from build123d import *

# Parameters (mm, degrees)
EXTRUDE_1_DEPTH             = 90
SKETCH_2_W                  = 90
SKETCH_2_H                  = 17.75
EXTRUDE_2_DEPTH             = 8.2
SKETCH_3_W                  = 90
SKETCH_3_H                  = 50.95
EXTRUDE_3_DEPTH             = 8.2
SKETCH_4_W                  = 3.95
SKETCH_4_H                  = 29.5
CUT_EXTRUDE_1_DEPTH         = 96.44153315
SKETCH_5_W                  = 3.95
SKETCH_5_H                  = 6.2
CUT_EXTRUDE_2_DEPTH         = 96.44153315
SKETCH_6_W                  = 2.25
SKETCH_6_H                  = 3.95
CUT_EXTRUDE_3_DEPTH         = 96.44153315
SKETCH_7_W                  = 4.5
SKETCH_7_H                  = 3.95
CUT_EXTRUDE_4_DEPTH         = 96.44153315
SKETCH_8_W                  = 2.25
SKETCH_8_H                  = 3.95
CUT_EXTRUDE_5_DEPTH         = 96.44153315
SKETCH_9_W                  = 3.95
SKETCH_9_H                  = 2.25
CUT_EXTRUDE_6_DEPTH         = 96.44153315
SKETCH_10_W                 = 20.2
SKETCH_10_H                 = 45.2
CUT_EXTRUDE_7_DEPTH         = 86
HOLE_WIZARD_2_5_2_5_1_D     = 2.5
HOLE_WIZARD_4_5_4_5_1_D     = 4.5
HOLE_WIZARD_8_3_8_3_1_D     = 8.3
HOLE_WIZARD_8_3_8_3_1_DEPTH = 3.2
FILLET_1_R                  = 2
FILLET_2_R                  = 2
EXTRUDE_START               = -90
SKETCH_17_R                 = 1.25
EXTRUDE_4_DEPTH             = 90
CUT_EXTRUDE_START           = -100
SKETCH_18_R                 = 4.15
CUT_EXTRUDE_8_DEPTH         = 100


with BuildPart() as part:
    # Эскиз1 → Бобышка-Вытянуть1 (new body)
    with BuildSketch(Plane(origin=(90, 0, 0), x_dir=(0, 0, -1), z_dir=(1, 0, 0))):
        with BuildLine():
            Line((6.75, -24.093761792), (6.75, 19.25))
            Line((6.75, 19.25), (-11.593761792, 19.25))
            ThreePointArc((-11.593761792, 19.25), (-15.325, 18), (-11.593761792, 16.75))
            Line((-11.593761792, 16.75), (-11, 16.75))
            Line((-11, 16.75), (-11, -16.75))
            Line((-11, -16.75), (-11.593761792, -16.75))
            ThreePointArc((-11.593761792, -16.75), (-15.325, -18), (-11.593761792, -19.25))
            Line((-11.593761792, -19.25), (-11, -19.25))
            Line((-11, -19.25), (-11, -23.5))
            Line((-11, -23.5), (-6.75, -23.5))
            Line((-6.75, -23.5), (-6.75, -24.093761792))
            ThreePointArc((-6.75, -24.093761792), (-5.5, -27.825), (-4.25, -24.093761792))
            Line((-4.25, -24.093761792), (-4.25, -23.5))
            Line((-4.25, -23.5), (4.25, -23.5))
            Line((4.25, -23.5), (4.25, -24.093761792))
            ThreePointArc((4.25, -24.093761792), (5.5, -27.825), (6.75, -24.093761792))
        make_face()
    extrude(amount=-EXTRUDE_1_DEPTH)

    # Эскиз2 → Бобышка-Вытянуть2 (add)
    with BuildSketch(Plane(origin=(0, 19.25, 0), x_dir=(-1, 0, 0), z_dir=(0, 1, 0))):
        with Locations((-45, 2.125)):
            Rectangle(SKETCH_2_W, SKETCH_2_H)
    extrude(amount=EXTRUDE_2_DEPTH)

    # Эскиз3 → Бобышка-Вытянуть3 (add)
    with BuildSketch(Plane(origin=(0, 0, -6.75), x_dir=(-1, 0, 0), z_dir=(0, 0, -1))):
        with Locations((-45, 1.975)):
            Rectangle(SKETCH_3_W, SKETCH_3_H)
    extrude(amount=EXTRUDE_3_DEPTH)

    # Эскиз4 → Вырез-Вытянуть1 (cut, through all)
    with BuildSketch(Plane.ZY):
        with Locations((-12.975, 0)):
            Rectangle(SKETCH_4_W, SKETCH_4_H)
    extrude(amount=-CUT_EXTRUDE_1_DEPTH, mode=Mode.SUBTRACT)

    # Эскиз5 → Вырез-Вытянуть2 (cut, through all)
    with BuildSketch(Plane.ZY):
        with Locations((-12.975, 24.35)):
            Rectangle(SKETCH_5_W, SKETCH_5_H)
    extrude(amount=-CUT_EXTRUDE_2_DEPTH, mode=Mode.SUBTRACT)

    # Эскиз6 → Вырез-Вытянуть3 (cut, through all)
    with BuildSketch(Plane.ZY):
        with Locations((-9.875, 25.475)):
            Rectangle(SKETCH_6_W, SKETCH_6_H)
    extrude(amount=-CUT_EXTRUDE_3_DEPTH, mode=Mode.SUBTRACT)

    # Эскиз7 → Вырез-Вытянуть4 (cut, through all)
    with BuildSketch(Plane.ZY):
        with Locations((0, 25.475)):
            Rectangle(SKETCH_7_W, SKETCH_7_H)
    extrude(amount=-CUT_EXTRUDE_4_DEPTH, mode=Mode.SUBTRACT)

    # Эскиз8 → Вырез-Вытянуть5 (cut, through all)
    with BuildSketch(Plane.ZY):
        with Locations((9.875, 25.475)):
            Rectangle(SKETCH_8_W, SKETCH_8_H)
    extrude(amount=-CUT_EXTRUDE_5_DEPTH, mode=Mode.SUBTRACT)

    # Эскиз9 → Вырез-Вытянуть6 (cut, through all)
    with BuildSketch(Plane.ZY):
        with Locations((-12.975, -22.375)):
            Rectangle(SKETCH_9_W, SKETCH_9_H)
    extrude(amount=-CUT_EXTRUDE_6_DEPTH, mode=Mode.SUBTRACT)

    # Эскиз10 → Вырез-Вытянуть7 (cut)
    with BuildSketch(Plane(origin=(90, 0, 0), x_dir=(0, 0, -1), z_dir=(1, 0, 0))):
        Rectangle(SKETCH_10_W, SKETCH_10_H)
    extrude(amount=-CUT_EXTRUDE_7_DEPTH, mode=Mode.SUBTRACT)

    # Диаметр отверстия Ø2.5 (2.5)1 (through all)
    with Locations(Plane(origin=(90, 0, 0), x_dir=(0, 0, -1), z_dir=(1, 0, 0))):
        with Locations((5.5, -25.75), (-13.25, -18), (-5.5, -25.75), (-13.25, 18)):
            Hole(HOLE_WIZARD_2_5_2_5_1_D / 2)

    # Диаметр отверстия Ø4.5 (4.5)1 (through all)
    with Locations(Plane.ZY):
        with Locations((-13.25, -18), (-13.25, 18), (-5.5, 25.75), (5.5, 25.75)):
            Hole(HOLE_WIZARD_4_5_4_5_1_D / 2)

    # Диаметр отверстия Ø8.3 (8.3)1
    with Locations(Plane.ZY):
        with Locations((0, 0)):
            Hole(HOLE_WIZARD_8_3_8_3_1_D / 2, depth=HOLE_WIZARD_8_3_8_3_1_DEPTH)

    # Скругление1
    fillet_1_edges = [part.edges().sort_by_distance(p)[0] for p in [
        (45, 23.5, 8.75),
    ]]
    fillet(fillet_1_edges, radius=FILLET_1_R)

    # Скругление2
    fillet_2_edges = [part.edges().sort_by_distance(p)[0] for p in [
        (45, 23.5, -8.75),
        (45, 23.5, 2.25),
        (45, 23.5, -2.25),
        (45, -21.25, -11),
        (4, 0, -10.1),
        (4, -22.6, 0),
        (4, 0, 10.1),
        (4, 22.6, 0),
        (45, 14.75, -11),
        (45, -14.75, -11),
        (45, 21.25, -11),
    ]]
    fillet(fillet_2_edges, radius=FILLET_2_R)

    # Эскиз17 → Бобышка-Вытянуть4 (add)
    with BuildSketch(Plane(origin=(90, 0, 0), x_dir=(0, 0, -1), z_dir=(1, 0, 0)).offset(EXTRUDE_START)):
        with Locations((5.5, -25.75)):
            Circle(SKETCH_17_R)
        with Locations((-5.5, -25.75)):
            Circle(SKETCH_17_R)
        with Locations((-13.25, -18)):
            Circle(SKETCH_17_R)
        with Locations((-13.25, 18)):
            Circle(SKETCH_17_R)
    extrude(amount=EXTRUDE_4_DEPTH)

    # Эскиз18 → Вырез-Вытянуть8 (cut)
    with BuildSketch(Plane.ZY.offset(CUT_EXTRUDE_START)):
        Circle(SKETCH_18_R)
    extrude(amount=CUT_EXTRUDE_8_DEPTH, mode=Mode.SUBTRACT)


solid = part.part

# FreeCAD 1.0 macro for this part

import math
import FreeCAD as App
import Part
import Sketcher


def edges_at(feature, points):
    """Names of the edges that pass closest to the given points."""
    edges = feature.Shape.Edges
    near = lambda p: min(range(len(edges)), key=lambda i: edges[i].distToShape(Part.Vertex(*p))[0])
    return sorted({f"Edge{near(p) + 1}" for p in points})

doc = App.newDocument("Part")
params = doc.addObject("Spreadsheet::Sheet", "Params")
for row, (alias, value) in enumerate([
    ("sketch1_width", "33.5 mm"),
    ("sketch1_height", "8.5 mm"),
    ("pad1_length", "90 mm"),
    ("sketch2_width", "90 mm"),
    ("sketch2_height", "17.75 mm"),
    ("pad2_length", "8.2 mm"),
    ("sketch3_width", "90 mm"),
    ("sketch3_height", "50.95 mm"),
    ("pad3_length", "8.2 mm"),
    ("sketch4_width", "29.5 mm"),
    ("sketch4_height", "3.95 mm"),
    ("sketch5_width", "6.2 mm"),
    ("sketch5_height", "3.95 mm"),
    ("sketch6_width", "3.95 mm"),
    ("sketch6_height", "2.25 mm"),
    ("sketch7_height", "4.5 mm"),
    ("sketch7_width", "3.95 mm"),
    ("sketch8_width", "3.95 mm"),
    ("sketch8_height", "2.25 mm"),
    ("sketch9_width", "2.25 mm"),
    ("sketch9_height", "3.95 mm"),
    ("sketch10_width", "45.2 mm"),
    ("sketch10_height", "20.2 mm"),
    ("pocket7_length", "86 mm"),
    ("sketch11_diameter", "2.5 mm"),
    ("hole_diameter", "2.5 mm"),
    ("sketch12_diameter", "4.5 mm"),
    ("hole2_diameter", "4.5 mm"),
    ("sketch13_diameter", "8.3 mm"),
    ("hole3_diameter", "8.3 mm"),
    ("hole3_depth", "3.2 mm"),
    ("fillet_radius", "2 mm"),
    ("fillet2_radius", "2 mm"),
    ("sketch14_diameter", "2.5 mm"),
    ("pad4_length", "90 mm"),
    ("sketch15_diameter", "8.3 mm"),
    ("pocket8_length", "100 mm"),
], start=1):
    params.set(f"A{row}", alias)
    params.set(f"B{row}", "=" + value)
    params.setAlias(f"B{row}", alias)

body = doc.addObject("PartDesign::Body", "Body")

# Sketch on YZ plane
sketch1 = body.newObject("Sketcher::SketchObject", "Sketch")
sketch1.AttachmentSupport = (doc.getObject("YZ_Plane"), [""])
sketch1.MapMode = "FlatFace"
sketch1.AttachmentOffset = App.Placement(App.Vector(0, 0, 90), App.Rotation())
sketch1.addGeometry(Part.LineSegment(App.Vector(-24.1, -6.8, 0), App.Vector(19.2, -6.8, 0)), False)
sketch1.addGeometry(Part.LineSegment(App.Vector(19.2, -6.8, 0), App.Vector(19.2, 11.6, 0)), False)
sketch1.addGeometry(Part.ArcOfCircle(Part.Circle(App.Vector(18, 13.2, 0), App.Vector(0, 0, 1), 2.1), math.radians(-53), math.radians(233)), False)
sketch1.addGeometry(Part.LineSegment(App.Vector(16.8, 11.6, 0), App.Vector(16.8, 11, 0)), False)
sketch1.addGeometry(Part.LineSegment(App.Vector(16.8, 11, 0), App.Vector(-16.8, 11, 0)), False)
sketch1.addGeometry(Part.LineSegment(App.Vector(-16.8, 11, 0), App.Vector(-16.8, 11.6, 0)), False)
sketch1.addGeometry(Part.ArcOfCircle(Part.Circle(App.Vector(-18, 13.2, 0), App.Vector(0, 0, 1), 2.1), math.radians(-53), math.radians(233)), False)
sketch1.addGeometry(Part.LineSegment(App.Vector(-19.2, 11.6, 0), App.Vector(-19.2, 11, 0)), False)
sketch1.addGeometry(Part.LineSegment(App.Vector(-19.2, 11, 0), App.Vector(-23.5, 11, 0)), False)
sketch1.addGeometry(Part.LineSegment(App.Vector(-23.5, 11, 0), App.Vector(-23.5, 6.8, 0)), False)
sketch1.addGeometry(Part.LineSegment(App.Vector(-23.5, 6.8, 0), App.Vector(-24.1, 6.8, 0)), False)
sketch1.addGeometry(Part.ArcOfCircle(Part.Circle(App.Vector(-25.8, 5.5, 0), App.Vector(0, 0, 1), 2.1), math.radians(37), math.radians(323)), False)
sketch1.addGeometry(Part.LineSegment(App.Vector(-24.1, 4.2, 0), App.Vector(-23.5, 4.2, 0)), False)
sketch1.addGeometry(Part.LineSegment(App.Vector(-23.5, 4.2, 0), App.Vector(-23.5, -4.2, 0)), False)
sketch1.addGeometry(Part.LineSegment(App.Vector(-23.5, -4.2, 0), App.Vector(-24.1, -4.2, 0)), False)
sketch1.addGeometry(Part.ArcOfCircle(Part.Circle(App.Vector(-25.8, -5.5, 0), App.Vector(0, 0, 1), 2.1), math.radians(37), math.radians(323)), False)
sketch1.addConstraint(Sketcher.Constraint("Coincident", 0, 2, 1, 1))
sketch1.addConstraint(Sketcher.Constraint("Coincident", 1, 2, 2, 1))
sketch1.addConstraint(Sketcher.Constraint("Coincident", 2, 2, 3, 1))
sketch1.addConstraint(Sketcher.Constraint("Coincident", 3, 2, 4, 1))
sketch1.addConstraint(Sketcher.Constraint("Coincident", 4, 2, 5, 1))
sketch1.addConstraint(Sketcher.Constraint("Coincident", 5, 2, 6, 1))
sketch1.addConstraint(Sketcher.Constraint("Coincident", 6, 2, 7, 1))
sketch1.addConstraint(Sketcher.Constraint("Coincident", 7, 2, 8, 1))
sketch1.addConstraint(Sketcher.Constraint("Coincident", 8, 2, 9, 1))
sketch1.addConstraint(Sketcher.Constraint("Coincident", 9, 2, 10, 1))
sketch1.addConstraint(Sketcher.Constraint("Coincident", 10, 2, 11, 1))
sketch1.addConstraint(Sketcher.Constraint("Coincident", 11, 2, 12, 1))
sketch1.addConstraint(Sketcher.Constraint("Coincident", 12, 2, 13, 1))
sketch1.addConstraint(Sketcher.Constraint("Coincident", 13, 2, 14, 1))
sketch1.addConstraint(Sketcher.Constraint("Coincident", 14, 2, 15, 1))
sketch1.addConstraint(Sketcher.Constraint("Coincident", 15, 2, 0, 1))
sketch1.addConstraint(Sketcher.Constraint("Horizontal", 0))
sketch1.addConstraint(Sketcher.Constraint("Vertical", 1))
sketch1.addConstraint(Sketcher.Constraint("Vertical", 3))
sketch1.addConstraint(Sketcher.Constraint("Horizontal", 4))
sketch1.addConstraint(Sketcher.Constraint("Vertical", 5))
sketch1.addConstraint(Sketcher.Constraint("Vertical", 7))
sketch1.addConstraint(Sketcher.Constraint("Horizontal", 8))
sketch1.addConstraint(Sketcher.Constraint("Vertical", 9))
sketch1.addConstraint(Sketcher.Constraint("Horizontal", 10))
sketch1.addConstraint(Sketcher.Constraint("Horizontal", 12))
sketch1.addConstraint(Sketcher.Constraint("Vertical", 13))
sketch1.addConstraint(Sketcher.Constraint("Horizontal", 14))
sketch1.addConstraint(Sketcher.Constraint("Equal", 2, 6))
sketch1.addConstraint(Sketcher.Constraint("Equal", 6, 11))
sketch1.addConstraint(Sketcher.Constraint("Equal", 11, 15))
sketch1.addConstraint(Sketcher.Constraint("Symmetric", 2, 3, 6, 3, -2))
sketch1.addConstraint(Sketcher.Constraint("Symmetric", 11, 3, 15, 3, -1))
sketch1.addConstraint(Sketcher.Constraint("Horizontal", 1, 2, 2, 2))
sketch1.addConstraint(Sketcher.Constraint("Horizontal", 2, 2, 5, 2))
sketch1.addConstraint(Sketcher.Constraint("Horizontal", 5, 2, 6, 2))
sketch1.addConstraint(Sketcher.Constraint("Horizontal", 4, 2, 7, 2))
sketch1.addConstraint(Sketcher.Constraint("Vertical", 10, 2, 11, 2))
sketch1.addConstraint(Sketcher.Constraint("Vertical", 9, 2, 12, 2))
sketch1.addConstraint(Sketcher.Constraint("Vertical", 11, 2, 14, 2))
sketch1.addConstraint(Sketcher.Constraint("Vertical", 14, 2, 15, 2))
sketch1.addConstraint(Sketcher.Constraint("Equal", 14, 3))
sketch1.addConstraint(Sketcher.Constraint("Equal", 8, 9))
sketch1.addConstraint(Sketcher.Constraint("DistanceX", 4, 2, 4, 1, 33.5))
sketch1.addConstraint(Sketcher.Constraint("DistanceY", 13, 2, 13, 1, 8.5))
sketch1.addConstraint(Sketcher.Constraint("DistanceX", -1, 1, 2, 3, 18.0))
sketch1.addConstraint(Sketcher.Constraint("DistanceY", -1, 1, 3, 2, 11.0))
sketch1.addConstraint(Sketcher.Constraint("Radius", 2, 2.075))
sketch1.addConstraint(Sketcher.Constraint("DistanceY", 15, 3, 11, 3, 11.0))
sketch1.addConstraint(Sketcher.Constraint("DistanceY", 0, 2, 2, 3, 20.0))
sketch1.setExpression("Constraints[43]", "Params.sketch1_width")
sketch1.setExpression("Constraints[44]", "Params.sketch1_height")
pad1 = body.newObject("PartDesign::Pad", "Pad")
pad1.Profile = sketch1
pad1.setExpression("Length", "Params.pad1_length")
pad1.Reversed = True

# Sketch on XZ plane
sketch2 = body.newObject("Sketcher::SketchObject", "Sketch001")
sketch2.AttachmentSupport = (doc.getObject("XZ_Plane"), [""])
sketch2.MapMode = "FlatFace"
sketch2.AttachmentOffset = App.Placement(App.Vector(0, 0, -19.25), App.Rotation())
sketch2.addGeometry(Part.LineSegment(App.Vector(90, 11, 0), App.Vector(90, -7, 0)), False)
sketch2.addGeometry(Part.LineSegment(App.Vector(90, -7, 0), App.Vector(0, -7, 0)), False)
sketch2.addGeometry(Part.LineSegment(App.Vector(0, -7, 0), App.Vector(0, 11, 0)), False)
sketch2.addGeometry(Part.LineSegment(App.Vector(0, 11, 0), App.Vector(90, 11, 0)), False)
sketch2.addConstraint(Sketcher.Constraint("Coincident", 0, 2, 1, 1))
sketch2.addConstraint(Sketcher.Constraint("Coincident", 1, 2, 2, 1))
sketch2.addConstraint(Sketcher.Constraint("Coincident", 2, 2, 3, 1))
sketch2.addConstraint(Sketcher.Constraint("Coincident", 3, 2, 0, 1))
sketch2.addConstraint(Sketcher.Constraint("Vertical", 0))
sketch2.addConstraint(Sketcher.Constraint("Horizontal", 1))
sketch2.addConstraint(Sketcher.Constraint("Vertical", 2))
sketch2.addConstraint(Sketcher.Constraint("Horizontal", 3))
sketch2.addConstraint(Sketcher.Constraint("PointOnObject", 1, 2, -2))
sketch2.addConstraint(Sketcher.Constraint("DistanceX", 1, 2, 1, 1, 90.0))
sketch2.addConstraint(Sketcher.Constraint("DistanceY", -1, 1, 2, 2, 11.0))
sketch2.addConstraint(Sketcher.Constraint("DistanceY", 0, 2, 0, 1, 17.75))
sketch2.setExpression("Constraints[9]", "Params.sketch2_width")
sketch2.setExpression("Constraints[11]", "Params.sketch2_height")
pad2 = body.newObject("PartDesign::Pad", "Pad001")
pad2.Profile = sketch2
pad2.setExpression("Length", "Params.pad2_length")
pad2.Reversed = True

# Sketch on XY plane
sketch3 = body.newObject("Sketcher::SketchObject", "Sketch002")
sketch3.AttachmentSupport = (doc.getObject("XY_Plane"), [""])
sketch3.MapMode = "FlatFace"
sketch3.AttachmentOffset = App.Placement(App.Vector(0, 0, -6.75), App.Rotation())
sketch3.addGeometry(Part.LineSegment(App.Vector(90, 27, 0), App.Vector(90, -24, 0)), False)
sketch3.addGeometry(Part.LineSegment(App.Vector(90, -24, 0), App.Vector(0, -24, 0)), False)
sketch3.addGeometry(Part.LineSegment(App.Vector(0, -24, 0), App.Vector(0, 27, 0)), False)
sketch3.addGeometry(Part.LineSegment(App.Vector(0, 27, 0), App.Vector(90, 27, 0)), False)
sketch3.addConstraint(Sketcher.Constraint("Coincident", 0, 2, 1, 1))
sketch3.addConstraint(Sketcher.Constraint("Coincident", 1, 2, 2, 1))
sketch3.addConstraint(Sketcher.Constraint("Coincident", 2, 2, 3, 1))
sketch3.addConstraint(Sketcher.Constraint("Coincident", 3, 2, 0, 1))
sketch3.addConstraint(Sketcher.Constraint("Vertical", 0))
sketch3.addConstraint(Sketcher.Constraint("Horizontal", 1))
sketch3.addConstraint(Sketcher.Constraint("Vertical", 2))
sketch3.addConstraint(Sketcher.Constraint("Horizontal", 3))
sketch3.addConstraint(Sketcher.Constraint("PointOnObject", 1, 2, -2))
sketch3.addConstraint(Sketcher.Constraint("DistanceX", 1, 2, 1, 1, 90.0))
sketch3.addConstraint(Sketcher.Constraint("DistanceY", 0, 2, 0, 1, 50.95))
sketch3.addConstraint(Sketcher.Constraint("DistanceY", 0, 2, -1, 1, 23.5))
sketch3.setExpression("Constraints[9]", "Params.sketch3_width")
sketch3.setExpression("Constraints[10]", "Params.sketch3_height")
pad3 = body.newObject("PartDesign::Pad", "Pad002")
pad3.Profile = sketch3
pad3.setExpression("Length", "Params.pad3_length")
pad3.Reversed = True

# Sketch on YZ plane
sketch4 = body.newObject("Sketcher::SketchObject", "Sketch003")
sketch4.AttachmentSupport = (doc.getObject("YZ_Plane"), [""])
sketch4.MapMode = "FlatFace"
sketch4.addGeometry(Part.LineSegment(App.Vector(14.8, -14.9, 0), App.Vector(-14.8, -14.9, 0)), False)
sketch4.addGeometry(Part.LineSegment(App.Vector(-14.8, -14.9, 0), App.Vector(-14.8, -11, 0)), False)
sketch4.addGeometry(Part.LineSegment(App.Vector(-14.8, -11, 0), App.Vector(14.8, -11, 0)), False)
sketch4.addGeometry(Part.LineSegment(App.Vector(14.8, -11, 0), App.Vector(14.8, -14.9, 0)), False)
sketch4.addConstraint(Sketcher.Constraint("Coincident", 0, 2, 1, 1))
sketch4.addConstraint(Sketcher.Constraint("Coincident", 1, 2, 2, 1))
sketch4.addConstraint(Sketcher.Constraint("Coincident", 2, 2, 3, 1))
sketch4.addConstraint(Sketcher.Constraint("Coincident", 3, 2, 0, 1))
sketch4.addConstraint(Sketcher.Constraint("Horizontal", 0))
sketch4.addConstraint(Sketcher.Constraint("Vertical", 1))
sketch4.addConstraint(Sketcher.Constraint("Horizontal", 2))
sketch4.addConstraint(Sketcher.Constraint("Vertical", 3))
sketch4.addConstraint(Sketcher.Constraint("DistanceX", 0, 2, 0, 1, 29.5))
sketch4.addConstraint(Sketcher.Constraint("DistanceY", 1, 2, -1, 1, 11.0))
sketch4.addConstraint(Sketcher.Constraint("DistanceY", 1, 1, 1, 2, 3.95))
sketch4.addConstraint(Sketcher.Constraint("DistanceX", 0, 2, -1, 1, 14.75))
sketch4.setExpression("Constraints[8]", "Params.sketch4_width")
sketch4.setExpression("Constraints[10]", "Params.sketch4_height")
pocket1 = body.newObject("PartDesign::Pocket", "Pocket")
pocket1.Profile = sketch4
pocket1.Type = "ThroughAll"
pocket1.Reversed = True

# Sketch on YZ plane
sketch5 = body.newObject("Sketcher::SketchObject", "Sketch004")
sketch5.AttachmentSupport = (doc.getObject("YZ_Plane"), [""])
sketch5.MapMode = "FlatFace"
sketch5.addGeometry(Part.LineSegment(App.Vector(27.4, -14.9, 0), App.Vector(21.2, -14.9, 0)), False)
sketch5.addGeometry(Part.LineSegment(App.Vector(21.2, -14.9, 0), App.Vector(21.2, -11, 0)), False)
sketch5.addGeometry(Part.LineSegment(App.Vector(21.2, -11, 0), App.Vector(27.4, -11, 0)), False)
sketch5.addGeometry(Part.LineSegment(App.Vector(27.4, -11, 0), App.Vector(27.4, -14.9, 0)), False)
sketch5.addConstraint(Sketcher.Constraint("Coincident", 0, 2, 1, 1))
sketch5.addConstraint(Sketcher.Constraint("Coincident", 1, 2, 2, 1))
sketch5.addConstraint(Sketcher.Constraint("Coincident", 2, 2, 3, 1))
sketch5.addConstraint(Sketcher.Constraint("Coincident", 3, 2, 0, 1))
sketch5.addConstraint(Sketcher.Constraint("Horizontal", 0))
sketch5.addConstraint(Sketcher.Constraint("Vertical", 1))
sketch5.addConstraint(Sketcher.Constraint("Horizontal", 2))
sketch5.addConstraint(Sketcher.Constraint("Vertical", 3))
sketch5.addConstraint(Sketcher.Constraint("DistanceX", 0, 2, 0, 1, 6.2))
sketch5.addConstraint(Sketcher.Constraint("DistanceY", 1, 2, -1, 1, 11.0))
sketch5.addConstraint(Sketcher.Constraint("DistanceY", 1, 1, 1, 2, 3.95))
sketch5.addConstraint(Sketcher.Constraint("DistanceX", -1, 1, 0, 2, 21.25))
sketch5.setExpression("Constraints[8]", "Params.sketch5_width")
sketch5.setExpression("Constraints[10]", "Params.sketch5_height")
pocket2 = body.newObject("PartDesign::Pocket", "Pocket001")
pocket2.Profile = sketch5
pocket2.Type = "ThroughAll"
pocket2.Reversed = True

# Sketch on YZ plane
sketch6 = body.newObject("Sketcher::SketchObject", "Sketch005")
sketch6.AttachmentSupport = (doc.getObject("YZ_Plane"), [""])
sketch6.MapMode = "FlatFace"
sketch6.addGeometry(Part.LineSegment(App.Vector(27.4, -11, 0), App.Vector(23.5, -11, 0)), False)
sketch6.addGeometry(Part.LineSegment(App.Vector(23.5, -11, 0), App.Vector(23.5, -8.8, 0)), False)
sketch6.addGeometry(Part.LineSegment(App.Vector(23.5, -8.8, 0), App.Vector(27.4, -8.8, 0)), False)
sketch6.addGeometry(Part.LineSegment(App.Vector(27.4, -8.8, 0), App.Vector(27.4, -11, 0)), False)
sketch6.addConstraint(Sketcher.Constraint("Coincident", 0, 2, 1, 1))
sketch6.addConstraint(Sketcher.Constraint("Coincident", 1, 2, 2, 1))
sketch6.addConstraint(Sketcher.Constraint("Coincident", 2, 2, 3, 1))
sketch6.addConstraint(Sketcher.Constraint("Coincident", 3, 2, 0, 1))
sketch6.addConstraint(Sketcher.Constraint("Horizontal", 0))
sketch6.addConstraint(Sketcher.Constraint("Vertical", 1))
sketch6.addConstraint(Sketcher.Constraint("Horizontal", 2))
sketch6.addConstraint(Sketcher.Constraint("Vertical", 3))
sketch6.addConstraint(Sketcher.Constraint("DistanceY", 0, 2, -1, 1, 11.0))
sketch6.addConstraint(Sketcher.Constraint("DistanceX", 0, 2, 0, 1, 3.95))
sketch6.addConstraint(Sketcher.Constraint("DistanceY", 1, 1, 1, 2, 2.25))
sketch6.addConstraint(Sketcher.Constraint("DistanceX", -1, 1, 0, 2, 23.5))
sketch6.setExpression("Constraints[9]", "Params.sketch6_width")
sketch6.setExpression("Constraints[10]", "Params.sketch6_height")
pocket3 = body.newObject("PartDesign::Pocket", "Pocket002")
pocket3.Profile = sketch6
pocket3.Type = "ThroughAll"
pocket3.Reversed = True

# Sketch on YZ plane
sketch7 = body.newObject("Sketcher::SketchObject", "Sketch006")
sketch7.AttachmentSupport = (doc.getObject("YZ_Plane"), [""])
sketch7.MapMode = "FlatFace"
sketch7.addGeometry(Part.LineSegment(App.Vector(27.4, -2.2, 0), App.Vector(23.5, -2.2, 0)), False)
sketch7.addGeometry(Part.LineSegment(App.Vector(23.5, -2.2, 0), App.Vector(23.5, 2.2, 0)), False)
sketch7.addGeometry(Part.LineSegment(App.Vector(23.5, 2.2, 0), App.Vector(27.4, 2.2, 0)), False)
sketch7.addGeometry(Part.LineSegment(App.Vector(27.4, 2.2, 0), App.Vector(27.4, -2.2, 0)), False)
sketch7.addConstraint(Sketcher.Constraint("Coincident", 0, 2, 1, 1))
sketch7.addConstraint(Sketcher.Constraint("Coincident", 1, 2, 2, 1))
sketch7.addConstraint(Sketcher.Constraint("Coincident", 2, 2, 3, 1))
sketch7.addConstraint(Sketcher.Constraint("Coincident", 3, 2, 0, 1))
sketch7.addConstraint(Sketcher.Constraint("Horizontal", 0))
sketch7.addConstraint(Sketcher.Constraint("Vertical", 1))
sketch7.addConstraint(Sketcher.Constraint("Horizontal", 2))
sketch7.addConstraint(Sketcher.Constraint("Vertical", 3))
sketch7.addConstraint(Sketcher.Constraint("DistanceY", 1, 1, 1, 2, 4.5))
sketch7.addConstraint(Sketcher.Constraint("DistanceX", 0, 2, 0, 1, 3.95))
sketch7.addConstraint(Sketcher.Constraint("DistanceX", -1, 1, 0, 2, 23.5))
sketch7.addConstraint(Sketcher.Constraint("DistanceY", 0, 2, -1, 1, 2.25))
sketch7.setExpression("Constraints[8]", "Params.sketch7_height")
sketch7.setExpression("Constraints[9]", "Params.sketch7_width")
pocket4 = body.newObject("PartDesign::Pocket", "Pocket003")
pocket4.Profile = sketch7
pocket4.Type = "ThroughAll"
pocket4.Reversed = True

# Sketch on YZ plane
sketch8 = body.newObject("Sketcher::SketchObject", "Sketch007")
sketch8.AttachmentSupport = (doc.getObject("YZ_Plane"), [""])
sketch8.MapMode = "FlatFace"
sketch8.addGeometry(Part.LineSegment(App.Vector(27.4, 8.8, 0), App.Vector(23.5, 8.8, 0)), False)
sketch8.addGeometry(Part.LineSegment(App.Vector(23.5, 8.8, 0), App.Vector(23.5, 11, 0)), False)
sketch8.addGeometry(Part.LineSegment(App.Vector(23.5, 11, 0), App.Vector(27.4, 11, 0)), False)
sketch8.addGeometry(Part.LineSegment(App.Vector(27.4, 11, 0), App.Vector(27.4, 8.8, 0)), False)
sketch8.addConstraint(Sketcher.Constraint("Coincident", 0, 2, 1, 1))
sketch8.addConstraint(Sketcher.Constraint("Coincident", 1, 2, 2, 1))
sketch8.addConstraint(Sketcher.Constraint("Coincident", 2, 2, 3, 1))
sketch8.addConstraint(Sketcher.Constraint("Coincident", 3, 2, 0, 1))
sketch8.addConstraint(Sketcher.Constraint("Horizontal", 0))
sketch8.addConstraint(Sketcher.Constraint("Vertical", 1))
sketch8.addConstraint(Sketcher.Constraint("Horizontal", 2))
sketch8.addConstraint(Sketcher.Constraint("Vertical", 3))
sketch8.addConstraint(Sketcher.Constraint("DistanceY", -1, 1, 1, 2, 11.0))
sketch8.addConstraint(Sketcher.Constraint("DistanceX", 0, 2, 0, 1, 3.95))
sketch8.addConstraint(Sketcher.Constraint("DistanceY", 1, 1, 1, 2, 2.25))
sketch8.addConstraint(Sketcher.Constraint("DistanceX", -1, 1, 0, 2, 23.5))
sketch8.setExpression("Constraints[9]", "Params.sketch8_width")
sketch8.setExpression("Constraints[10]", "Params.sketch8_height")
pocket5 = body.newObject("PartDesign::Pocket", "Pocket004")
pocket5.Profile = sketch8
pocket5.Type = "ThroughAll"
pocket5.Reversed = True

# Sketch on YZ plane
sketch9 = body.newObject("Sketcher::SketchObject", "Sketch008")
sketch9.AttachmentSupport = (doc.getObject("YZ_Plane"), [""])
sketch9.MapMode = "FlatFace"
sketch9.addGeometry(Part.LineSegment(App.Vector(-21.2, -14.9, 0), App.Vector(-23.5, -14.9, 0)), False)
sketch9.addGeometry(Part.LineSegment(App.Vector(-23.5, -14.9, 0), App.Vector(-23.5, -11, 0)), False)
sketch9.addGeometry(Part.LineSegment(App.Vector(-23.5, -11, 0), App.Vector(-21.2, -11, 0)), False)
sketch9.addGeometry(Part.LineSegment(App.Vector(-21.2, -11, 0), App.Vector(-21.2, -14.9, 0)), False)
sketch9.addConstraint(Sketcher.Constraint("Coincident", 0, 2, 1, 1))
sketch9.addConstraint(Sketcher.Constraint("Coincident", 1, 2, 2, 1))
sketch9.addConstraint(Sketcher.Constraint("Coincident", 2, 2, 3, 1))
sketch9.addConstraint(Sketcher.Constraint("Coincident", 3, 2, 0, 1))
sketch9.addConstraint(Sketcher.Constraint("Horizontal", 0))
sketch9.addConstraint(Sketcher.Constraint("Vertical", 1))
sketch9.addConstraint(Sketcher.Constraint("Horizontal", 2))
sketch9.addConstraint(Sketcher.Constraint("Vertical", 3))
sketch9.addConstraint(Sketcher.Constraint("DistanceY", 1, 2, -1, 1, 11.0))
sketch9.addConstraint(Sketcher.Constraint("DistanceX", 0, 2, 0, 1, 2.25))
sketch9.addConstraint(Sketcher.Constraint("DistanceY", 1, 1, 1, 2, 3.95))
sketch9.addConstraint(Sketcher.Constraint("DistanceX", 0, 2, -1, 1, 23.5))
sketch9.setExpression("Constraints[9]", "Params.sketch9_width")
sketch9.setExpression("Constraints[10]", "Params.sketch9_height")
pocket6 = body.newObject("PartDesign::Pocket", "Pocket005")
pocket6.Profile = sketch9
pocket6.Type = "ThroughAll"
pocket6.Reversed = True

# Sketch on YZ plane
sketch10 = body.newObject("Sketcher::SketchObject", "Sketch009")
sketch10.AttachmentSupport = (doc.getObject("YZ_Plane"), [""])
sketch10.MapMode = "FlatFace"
sketch10.AttachmentOffset = App.Placement(App.Vector(0, 0, 90), App.Rotation())
sketch10.addGeometry(Part.LineSegment(App.Vector(23, 10, 0), App.Vector(-23, 10, 0)), False)
sketch10.addGeometry(Part.LineSegment(App.Vector(-23, 10, 0), App.Vector(-23, -10, 0)), False)
sketch10.addGeometry(Part.LineSegment(App.Vector(-23, -10, 0), App.Vector(23, -10, 0)), False)
sketch10.addGeometry(Part.LineSegment(App.Vector(23, -10, 0), App.Vector(23, 10, 0)), False)
sketch10.addConstraint(Sketcher.Constraint("Coincident", 0, 2, 1, 1))
sketch10.addConstraint(Sketcher.Constraint("Coincident", 1, 2, 2, 1))
sketch10.addConstraint(Sketcher.Constraint("Coincident", 2, 2, 3, 1))
sketch10.addConstraint(Sketcher.Constraint("Coincident", 3, 2, 0, 1))
sketch10.addConstraint(Sketcher.Constraint("Horizontal", 0))
sketch10.addConstraint(Sketcher.Constraint("Vertical", 1))
sketch10.addConstraint(Sketcher.Constraint("Horizontal", 2))
sketch10.addConstraint(Sketcher.Constraint("Vertical", 3))
sketch10.addConstraint(Sketcher.Constraint("Symmetric", 0, 2, 2, 2, -1, 1))
sketch10.addConstraint(Sketcher.Constraint("DistanceX", 0, 2, 0, 1, 45.2))
sketch10.addConstraint(Sketcher.Constraint("DistanceY", 1, 2, 1, 1, 20.2))
sketch10.setExpression("Constraints[9]", "Params.sketch10_width")
sketch10.setExpression("Constraints[10]", "Params.sketch10_height")
pocket7 = body.newObject("PartDesign::Pocket", "Pocket006")
pocket7.Profile = sketch10
pocket7.setExpression("Length", "Params.pocket7_length")

# Sketch on YZ plane
sketch11 = body.newObject("Sketcher::SketchObject", "Sketch010")
sketch11.AttachmentSupport = (doc.getObject("YZ_Plane"), [""])
sketch11.MapMode = "FlatFace"
sketch11.AttachmentOffset = App.Placement(App.Vector(0, 0, 90), App.Rotation())
sketch11.addGeometry(Part.Circle(App.Vector(-25.8, -5.5, 0), App.Vector(0, 0, 1), 1.2), False)
sketch11.addGeometry(Part.Circle(App.Vector(-18, 13.2, 0), App.Vector(0, 0, 1), 1.2), False)
sketch11.addGeometry(Part.Circle(App.Vector(-25.8, 5.5, 0), App.Vector(0, 0, 1), 1.2), False)
sketch11.addGeometry(Part.Circle(App.Vector(18, 13.2, 0), App.Vector(0, 0, 1), 1.2), False)
sketch11.addConstraint(Sketcher.Constraint("Equal", 0, 1))
sketch11.addConstraint(Sketcher.Constraint("Equal", 1, 2))
sketch11.addConstraint(Sketcher.Constraint("Equal", 2, 3))
sketch11.addConstraint(Sketcher.Constraint("Symmetric", 1, 3, 3, 3, -2))
sketch11.addConstraint(Sketcher.Constraint("Symmetric", 0, 3, 2, 3, -1))
sketch11.addConstraint(Sketcher.Constraint("Diameter", 0, 2.5))
sketch11.addConstraint(Sketcher.Constraint("DistanceX", 1, 3, -1, 1, 18.0))
sketch11.addConstraint(Sketcher.Constraint("DistanceY", 0, 3, 2, 3, 11.0))
sketch11.addConstraint(Sketcher.Constraint("DistanceX", 0, 3, -1, 1, 25.75))
sketch11.addConstraint(Sketcher.Constraint("DistanceY", -1, 1, 1, 3, 13.25))
sketch11.setExpression("Constraints[5]", "Params.sketch11_diameter")
doc.recompute()
hole = body.newObject("PartDesign::Hole", "Hole")
hole.Profile = sketch11
hole.ThreadType = "None"
hole.setExpression("Diameter", "Params.hole_diameter")
hole.DepthType = "ThroughAll"

# Sketch on YZ plane
sketch12 = body.newObject("Sketcher::SketchObject", "Sketch011")
sketch12.AttachmentSupport = (doc.getObject("YZ_Plane"), [""])
sketch12.MapMode = "FlatFace"
sketch12.addGeometry(Part.Circle(App.Vector(-18, -13.2, 0), App.Vector(0, 0, 1), 2.2), False)
sketch12.addGeometry(Part.Circle(App.Vector(18, -13.2, 0), App.Vector(0, 0, 1), 2.2), False)
sketch12.addGeometry(Part.Circle(App.Vector(25.8, -5.5, 0), App.Vector(0, 0, 1), 2.2), False)
sketch12.addGeometry(Part.Circle(App.Vector(25.8, 5.5, 0), App.Vector(0, 0, 1), 2.2), False)
sketch12.addConstraint(Sketcher.Constraint("Equal", 0, 1))
sketch12.addConstraint(Sketcher.Constraint("Equal", 1, 2))
sketch12.addConstraint(Sketcher.Constraint("Equal", 2, 3))
sketch12.addConstraint(Sketcher.Constraint("Symmetric", 0, 3, 1, 3, -2))
sketch12.addConstraint(Sketcher.Constraint("Symmetric", 2, 3, 3, 3, -1))
sketch12.addConstraint(Sketcher.Constraint("Diameter", 0, 4.5))
sketch12.addConstraint(Sketcher.Constraint("DistanceX", 0, 3, -1, 1, 18.0))
sketch12.addConstraint(Sketcher.Constraint("DistanceY", 2, 3, 3, 3, 11.0))
sketch12.addConstraint(Sketcher.Constraint("DistanceY", 0, 3, -1, 1, 13.25))
sketch12.addConstraint(Sketcher.Constraint("DistanceX", -1, 1, 2, 3, 25.75))
sketch12.setExpression("Constraints[5]", "Params.sketch12_diameter")
doc.recompute()
hole2 = body.newObject("PartDesign::Hole", "Hole001")
hole2.Profile = sketch12
hole2.ThreadType = "None"
hole2.setExpression("Diameter", "Params.hole2_diameter")
hole2.DepthType = "ThroughAll"
hole2.Reversed = True

# Sketch on YZ plane
sketch13 = body.newObject("Sketcher::SketchObject", "Sketch012")
sketch13.AttachmentSupport = (doc.getObject("YZ_Plane"), [""])
sketch13.MapMode = "FlatFace"
sketch13.addGeometry(Part.Circle(App.Vector(0, 0, 0), App.Vector(0, 0, 1), 4.2), False)
sketch13.addConstraint(Sketcher.Constraint("Coincident", 0, 3, -1, 1))
sketch13.addConstraint(Sketcher.Constraint("Diameter", 0, 8.3))
sketch13.setExpression("Constraints[1]", "Params.sketch13_diameter")
doc.recompute()
hole3 = body.newObject("PartDesign::Hole", "Hole002")
hole3.Profile = sketch13
hole3.ThreadType = "None"
hole3.setExpression("Diameter", "Params.hole3_diameter")
hole3.DepthType = "Dimension"
hole3.setExpression("Depth", "Params.hole3_depth")
hole3.DrillPoint = "Flat"
hole3.Reversed = True
doc.recompute()

fillet = body.newObject("PartDesign::Fillet", "Fillet")
fillet.Base = (hole3, edges_at(hole3, [(45, 23.5, 8.75)]))
fillet.setExpression("Radius", "Params.fillet_radius")
doc.recompute()

fillet2 = body.newObject("PartDesign::Fillet", "Fillet001")
fillet2.Base = (fillet, edges_at(fillet, [
    (45, 23.5, -8.75),
    (45, 23.5, 2.25),
    (45, 23.5, -2.25),
    (45, -21.25, -11),
    (4, 0, -10.1),
    (4, -22.6, 0),
    (4, 0, 10.1),
    (4, 22.6, 0),
    (45, 14.75, -11),
    (45, -14.75, -11),
    (45, 21.25, -11),
]))
fillet2.setExpression("Radius", "Params.fillet2_radius")

# Sketch on YZ plane
sketch14 = body.newObject("Sketcher::SketchObject", "Sketch013")
sketch14.AttachmentSupport = (doc.getObject("YZ_Plane"), [""])
sketch14.MapMode = "FlatFace"
sketch14.addGeometry(Part.Circle(App.Vector(-25.8, -5.5, 0), App.Vector(0, 0, 1), 1.2), False)
sketch14.addGeometry(Part.Circle(App.Vector(-25.8, 5.5, 0), App.Vector(0, 0, 1), 1.2), False)
sketch14.addGeometry(Part.Circle(App.Vector(-18, 13.2, 0), App.Vector(0, 0, 1), 1.2), False)
sketch14.addGeometry(Part.Circle(App.Vector(18, 13.2, 0), App.Vector(0, 0, 1), 1.2), False)
sketch14.addConstraint(Sketcher.Constraint("Equal", 0, 1))
sketch14.addConstraint(Sketcher.Constraint("Equal", 1, 2))
sketch14.addConstraint(Sketcher.Constraint("Equal", 2, 3))
sketch14.addConstraint(Sketcher.Constraint("Symmetric", 2, 3, 3, 3, -2))
sketch14.addConstraint(Sketcher.Constraint("Symmetric", 0, 3, 1, 3, -1))
sketch14.addConstraint(Sketcher.Constraint("Diameter", 0, 2.5))
sketch14.addConstraint(Sketcher.Constraint("DistanceX", 2, 3, -1, 1, 18.0))
sketch14.addConstraint(Sketcher.Constraint("DistanceY", 0, 3, 1, 3, 11.0))
sketch14.addConstraint(Sketcher.Constraint("DistanceX", 0, 3, -1, 1, 25.75))
sketch14.addConstraint(Sketcher.Constraint("DistanceY", -1, 1, 2, 3, 13.25))
sketch14.setExpression("Constraints[5]", "Params.sketch14_diameter")
pad4 = body.newObject("PartDesign::Pad", "Pad003")
pad4.Profile = sketch14
pad4.setExpression("Length", "Params.pad4_length")

# Sketch on YZ plane
sketch15 = body.newObject("Sketcher::SketchObject", "Sketch014")
sketch15.AttachmentSupport = (doc.getObject("YZ_Plane"), [""])
sketch15.MapMode = "FlatFace"
sketch15.AttachmentOffset = App.Placement(App.Vector(0, 0, 100), App.Rotation())
sketch15.addGeometry(Part.Circle(App.Vector(0, 0, 0), App.Vector(0, 0, 1), 4.2), False)
sketch15.addConstraint(Sketcher.Constraint("Coincident", 0, 3, -1, 1))
sketch15.addConstraint(Sketcher.Constraint("Diameter", 0, 8.3))
sketch15.setExpression("Constraints[1]", "Params.sketch15_diameter")
pocket8 = body.newObject("PartDesign::Pocket", "Pocket007")
pocket8.Profile = sketch15
pocket8.setExpression("Length", "Params.pocket8_length")

doc.recompute()
